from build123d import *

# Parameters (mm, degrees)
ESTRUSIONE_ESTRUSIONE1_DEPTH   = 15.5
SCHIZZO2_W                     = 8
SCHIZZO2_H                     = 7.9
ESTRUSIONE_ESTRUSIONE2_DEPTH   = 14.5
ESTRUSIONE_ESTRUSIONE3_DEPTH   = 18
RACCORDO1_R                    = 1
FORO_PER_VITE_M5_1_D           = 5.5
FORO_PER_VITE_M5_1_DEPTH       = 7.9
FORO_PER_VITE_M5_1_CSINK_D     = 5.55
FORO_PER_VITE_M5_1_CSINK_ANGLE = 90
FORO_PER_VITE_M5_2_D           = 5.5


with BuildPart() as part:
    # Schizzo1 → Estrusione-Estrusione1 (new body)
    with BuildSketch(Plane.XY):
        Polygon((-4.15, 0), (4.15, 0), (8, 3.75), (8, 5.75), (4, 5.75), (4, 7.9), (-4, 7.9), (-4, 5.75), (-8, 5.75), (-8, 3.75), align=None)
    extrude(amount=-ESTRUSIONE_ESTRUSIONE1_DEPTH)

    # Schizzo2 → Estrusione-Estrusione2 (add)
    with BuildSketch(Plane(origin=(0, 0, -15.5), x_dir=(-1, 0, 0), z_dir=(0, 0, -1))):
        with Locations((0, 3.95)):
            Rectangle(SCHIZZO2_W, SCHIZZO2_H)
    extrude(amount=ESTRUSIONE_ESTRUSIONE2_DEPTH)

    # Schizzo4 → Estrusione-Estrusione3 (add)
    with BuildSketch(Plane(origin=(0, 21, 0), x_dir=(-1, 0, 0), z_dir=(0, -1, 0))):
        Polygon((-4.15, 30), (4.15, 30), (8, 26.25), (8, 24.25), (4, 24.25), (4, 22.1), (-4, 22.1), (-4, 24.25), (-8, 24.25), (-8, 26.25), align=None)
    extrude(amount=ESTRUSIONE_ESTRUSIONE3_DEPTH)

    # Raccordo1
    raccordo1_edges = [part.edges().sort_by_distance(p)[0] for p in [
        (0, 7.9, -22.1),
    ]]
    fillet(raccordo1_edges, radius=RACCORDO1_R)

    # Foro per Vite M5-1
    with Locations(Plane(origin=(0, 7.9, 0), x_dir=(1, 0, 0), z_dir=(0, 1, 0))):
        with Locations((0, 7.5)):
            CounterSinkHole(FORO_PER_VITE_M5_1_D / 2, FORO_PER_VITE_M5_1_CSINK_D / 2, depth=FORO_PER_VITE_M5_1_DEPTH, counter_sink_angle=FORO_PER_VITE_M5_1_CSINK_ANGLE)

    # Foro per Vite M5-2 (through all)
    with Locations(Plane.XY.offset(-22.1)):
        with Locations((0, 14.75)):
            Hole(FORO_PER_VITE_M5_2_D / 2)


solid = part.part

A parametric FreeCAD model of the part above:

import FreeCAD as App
import Part
import Sketcher
from FreeCAD import Vector


def edges_at(feature, points):
    """Names of the edges that pass closest to the given points."""
    edges = feature.Shape.Edges
    near = lambda p: min(range(len(edges)), key=lambda i: edges[i].distToShape(Part.Vertex(*p))[0])
    return sorted({f"Edge{near(p) + 1}" for p in points})

doc = App.newDocument("Part")
body = doc.addObject("PartDesign::Body", "Body")

sketch1 = doc.addObject("Sketcher::SketchObject", "Sketch")
body.addObject(sketch1)
sketch1.AttachmentSupport = (doc.XY_Plane, [""])
sketch1.MapMode = "FlatFace"
sketch1.addGeometry([
    Part.LineSegment(Vector(-4.2, 0, 0), Vector(4.2, 0, 0)),
    Part.LineSegment(Vector(4.2, 0, 0), Vector(8, 3.8, 0)),
    Part.LineSegment(Vector(8, 3.8, 0), Vector(8, 5.8, 0)),
    Part.LineSegment(Vector(8, 5.8, 0), Vector(4, 5.8, 0)),
    Part.LineSegment(Vector(4, 5.8, 0), Vector(4, 7.9, 0)),
    Part.LineSegment(Vector(4, 7.9, 0), Vector(-4, 7.9, 0)),
    Part.LineSegment(Vector(-4, 7.9, 0), Vector(-4, 5.8, 0)),
    Part.LineSegment(Vector(-4, 5.8, 0), Vector(-8, 5.8, 0)),
    Part.LineSegment(Vector(-8, 5.8, 0), Vector(-8, 3.8, 0)),
    Part.LineSegment(Vector(-8, 3.8, 0), Vector(-4.2, 0, 0)),
], False)
sketch1.addConstraint([
    Sketcher.Constraint("Coincident", 0, 2, 1, 1),
    Sketcher.Constraint("Coincident", 1, 2, 2, 1),
    Sketcher.Constraint("Coincident", 2, 2, 3, 1),
    Sketcher.Constraint("Coincident", 3, 2, 4, 1),
    Sketcher.Constraint("Coincident", 4, 2, 5, 1),
    Sketcher.Constraint("Coincident", 5, 2, 6, 1),
    Sketcher.Constraint("Coincident", 6, 2, 7, 1),
    Sketcher.Constraint("Coincident", 7, 2, 8, 1),
    Sketcher.Constraint("Coincident", 8, 2, 9, 1),
    Sketcher.Constraint("Coincident", 9, 2, 0, 1),
    Sketcher.Constraint("Horizontal", 0),
    Sketcher.Constraint("Vertical", 2),
    Sketcher.Constraint("Horizontal", 3),
    Sketcher.Constraint("Vertical", 4),
    Sketcher.Constraint("Horizontal", 5),
    Sketcher.Constraint("Vertical", 6),
    Sketcher.Constraint("Horizontal", 7),
    Sketcher.Constraint("Vertical", 8),
    Sketcher.Constraint("Symmetric", 0, 2, 9, 2, -1, 1),
    Sketcher.Constraint("Symmetric", 3, 2, 6, 2, -2),
    Sketcher.Constraint("Symmetric", 1, 2, 8, 2, -2),
    Sketcher.Constraint("DistanceX", 3, 2, 3, 1, 4.0),
    Sketcher.Constraint("DistanceX", 5, 2, 5, 1, 8.0),
    Sketcher.Constraint("DistanceY", 2, 1, 2, 2, 2.0),
    Sketcher.Constraint("DistanceX", 0, 1, 0, 2, 8.3),
    Sketcher.Constraint("DistanceY", 4, 1, 4, 2, 2.15),
    Sketcher.Constraint("DistanceY", -1, 1, 4, 2, 7.9),
])
pad1 = doc.addObject("PartDesign::Pad", "Pad")
body.addObject(pad1)
pad1.Profile = sketch1
pad1.Length = 15.5
pad1.Reversed = True

sketch2 = doc.addObject("Sketcher::SketchObject", "Sketch001")
body.addObject(sketch2)
sketch2.AttachmentSupport = (doc.XY_Plane, [""])
sketch2.MapMode = "FlatFace"
sketch2.AttachmentOffset = App.Placement(Vector(0, 0, -15.5), App.Rotation())
sketch2.addGeometry([
    Part.LineSegment(Vector(4, 8, 0), Vector(4, 0, 0)),
    Part.LineSegment(Vector(4, 0, 0), Vector(-4, 0, 0)),
    Part.LineSegment(Vector(-4, 0, 0), Vector(-4, 8, 0)),
    Part.LineSegment(Vector(-4, 8, 0), Vector(4, 8, 0)),
], False)
sketch2.addConstraint([
    Sketcher.Constraint("Coincident", 0, 2, 1, 1),
    Sketcher.Constraint("Coincident", 1, 2, 2, 1),
    Sketcher.Constraint("Coincident", 2, 2, 3, 1),
    Sketcher.Constraint("Coincident", 3, 2, 0, 1),
    Sketcher.Constraint("Vertical", 0),
    Sketcher.Constraint("Horizontal", 1),
    Sketcher.Constraint("Vertical", 2),
    Sketcher.Constraint("Horizontal", 3),
    Sketcher.Constraint("Symmetric", 0, 2, 1, 2, -1, 1),
    Sketcher.Constraint("DistanceX", 1, 2, 1, 1, 8.0),
    Sketcher.Constraint("DistanceY", 0, 2, 0, 1, 7.9),
])
pad2 = doc.addObject("PartDesign::Pad", "Pad001")
body.addObject(pad2)
pad2.Profile = sketch2
pad2.Length = 14.5
pad2.Reversed = True

sketch3 = doc.addObject("Sketcher::SketchObject", "Sketch002")
body.addObject(sketch3)
sketch3.AttachmentSupport = (doc.XZ_Plane, [""])
sketch3.MapMode = "FlatFace"
sketch3.AttachmentOffset = App.Placement(Vector(0, 0, -21), App.Rotation())
sketch3.addGeometry([
    Part.LineSegment(Vector(-4.2, -30, 0), Vector(4.2, -30, 0)),
    Part.LineSegment(Vector(4.2, -30, 0), Vector(8, -26.2, 0)),
    Part.LineSegment(Vector(8, -26.2, 0), Vector(8, -24.2, 0)),
    Part.LineSegment(Vector(8, -24.2, 0), Vector(4, -24.2, 0)),
    Part.LineSegment(Vector(4, -24.2, 0), Vector(4, -22.1, 0)),
    Part.LineSegment(Vector(4, -22.1, 0), Vector(-4, -22.1, 0)),
    Part.LineSegment(Vector(-4, -22.1, 0), Vector(-4, -24.2, 0)),
    Part.LineSegment(Vector(-4, -24.2, 0), Vector(-8, -24.2, 0)),
    Part.LineSegment(Vector(-8, -24.2, 0), Vector(-8, -26.2, 0)),
    Part.LineSegment(Vector(-8, -26.2, 0), Vector(-4.2, -30, 0)),
], False)
sketch3.addConstraint([
    Sketcher.Constraint("Coincident", 0, 2, 1, 1),
    Sketcher.Constraint("Coincident", 1, 2, 2, 1),
    Sketcher.Constraint("Coincident", 2, 2, 3, 1),
    Sketcher.Constraint("Coincident", 3, 2, 4, 1),
    Sketcher.Constraint("Coincident", 4, 2, 5, 1),
    Sketcher.Constraint("Coincident", 5, 2, 6, 1),
    Sketcher.Constraint("Coincident", 6, 2, 7, 1),
    Sketcher.Constraint("Coincident", 7, 2, 8, 1),
    Sketcher.Constraint("Coincident", 8, 2, 9, 1),
    Sketcher.Constraint("Coincident", 9, 2, 0, 1),
    Sketcher.Constraint("Horizontal", 0),
    Sketcher.Constraint("Vertical", 2),
    Sketcher.Constraint("Horizontal", 3),
    Sketcher.Constraint("Vertical", 4),
    Sketcher.Constraint("Horizontal", 5),
    Sketcher.Constraint("Vertical", 6),
    Sketcher.Constraint("Horizontal", 7),
    Sketcher.Constraint("Vertical", 8),
    Sketcher.Constraint("Symmetric", 3, 2, 6, 2, -2),
    Sketcher.Constraint("Symmetric", 1, 2, 8, 2, -2),
    Sketcher.Constraint("Equal", 1, 9),
    Sketcher.Constraint("DistanceX", 3, 2, 3, 1, 4.0),
    Sketcher.Constraint("DistanceX", 5, 2, 5, 1, 8.0),
    Sketcher.Constraint("DistanceY", 2, 1, 2, 2, 2.0),
    Sketcher.Constraint("DistanceX", 0, 1, 0, 2, 8.3),
    Sketcher.Constraint("DistanceY", 0, 2, -1, 1, 30.0),
    Sketcher.Constraint("DistanceY", 4, 1, 4, 2, 2.15),
    Sketcher.Constraint("DistanceY", 4, 2, -1, 1, 22.1),
])
pad3 = doc.addObject("PartDesign::Pad", "Pad002")
body.addObject(pad3)
pad3.Profile = sketch3
pad3.Length = 18
doc.recompute()

fillet = doc.addObject("PartDesign::Fillet", "Fillet")
body.addObject(fillet)
fillet.Base = (pad3, edges_at(pad3, [(0, 7.9, -22.1)]))
fillet.Radius = 1

sketch4 = doc.addObject("Sketcher::SketchObject", "Sketch003")
body.addObject(sketch4)
sketch4.AttachmentSupport = (doc.XZ_Plane, [""])
sketch4.MapMode = "FlatFace"
sketch4.AttachmentOffset = App.Placement(Vector(0, 0, -7.9), App.Rotation())
sketch4.addGeometry(Part.Circle(Vector(0, -7.5, 0), Vector(0, 0, 1), 2.8), False)
sketch4.addConstraint([
    Sketcher.Constraint("PointOnObject", 0, 3, -2),
    Sketcher.Constraint("Diameter", 0, 5.5),
    Sketcher.Constraint("DistanceY", 0, 3, -1, 1, 7.5),
])
doc.recompute()
hole = doc.addObject("PartDesign::Hole", "Hole")
body.addObject(hole)
hole.Profile = sketch4
hole.ThreadType = "None"
hole.Diameter = 5.5
hole.DepthType = "Dimension"
hole.Depth = 7.9
hole.DrillPoint = "Flat"
hole.HoleCutType = "Countersink"
hole.HoleCutDiameter = 5.55
hole.HoleCutCountersinkAngle = 90
hole.Reversed = True

sketch5 = doc.addObject("Sketcher::SketchObject", "Sketch004")
body.addObject(sketch5)
sketch5.AttachmentSupport = (doc.XY_Plane, [""])
sketch5.MapMode = "FlatFace"
sketch5.AttachmentOffset = App.Placement(Vector(0, 0, -22.1), App.Rotation())
sketch5.addGeometry(Part.Circle(Vector(0, 14.8, 0), Vector(0, 0, 1), 2.8), False)
sketch5.addConstraint([
    Sketcher.Constraint("PointOnObject", 0, 3, -2),
    Sketcher.Constraint("Diameter", 0, 5.5),
    Sketcher.Constraint("DistanceY", -1, 1, 0, 3, 14.75),
])
doc.recompute()
hole2 = doc.addObject("PartDesign::Hole", "Hole001")
body.addObject(hole2)
hole2.Profile = sketch5
hole2.ThreadType = "None"
hole2.Diameter = 5.5
hole2.DepthType = "ThroughAll"

doc.recompute()
